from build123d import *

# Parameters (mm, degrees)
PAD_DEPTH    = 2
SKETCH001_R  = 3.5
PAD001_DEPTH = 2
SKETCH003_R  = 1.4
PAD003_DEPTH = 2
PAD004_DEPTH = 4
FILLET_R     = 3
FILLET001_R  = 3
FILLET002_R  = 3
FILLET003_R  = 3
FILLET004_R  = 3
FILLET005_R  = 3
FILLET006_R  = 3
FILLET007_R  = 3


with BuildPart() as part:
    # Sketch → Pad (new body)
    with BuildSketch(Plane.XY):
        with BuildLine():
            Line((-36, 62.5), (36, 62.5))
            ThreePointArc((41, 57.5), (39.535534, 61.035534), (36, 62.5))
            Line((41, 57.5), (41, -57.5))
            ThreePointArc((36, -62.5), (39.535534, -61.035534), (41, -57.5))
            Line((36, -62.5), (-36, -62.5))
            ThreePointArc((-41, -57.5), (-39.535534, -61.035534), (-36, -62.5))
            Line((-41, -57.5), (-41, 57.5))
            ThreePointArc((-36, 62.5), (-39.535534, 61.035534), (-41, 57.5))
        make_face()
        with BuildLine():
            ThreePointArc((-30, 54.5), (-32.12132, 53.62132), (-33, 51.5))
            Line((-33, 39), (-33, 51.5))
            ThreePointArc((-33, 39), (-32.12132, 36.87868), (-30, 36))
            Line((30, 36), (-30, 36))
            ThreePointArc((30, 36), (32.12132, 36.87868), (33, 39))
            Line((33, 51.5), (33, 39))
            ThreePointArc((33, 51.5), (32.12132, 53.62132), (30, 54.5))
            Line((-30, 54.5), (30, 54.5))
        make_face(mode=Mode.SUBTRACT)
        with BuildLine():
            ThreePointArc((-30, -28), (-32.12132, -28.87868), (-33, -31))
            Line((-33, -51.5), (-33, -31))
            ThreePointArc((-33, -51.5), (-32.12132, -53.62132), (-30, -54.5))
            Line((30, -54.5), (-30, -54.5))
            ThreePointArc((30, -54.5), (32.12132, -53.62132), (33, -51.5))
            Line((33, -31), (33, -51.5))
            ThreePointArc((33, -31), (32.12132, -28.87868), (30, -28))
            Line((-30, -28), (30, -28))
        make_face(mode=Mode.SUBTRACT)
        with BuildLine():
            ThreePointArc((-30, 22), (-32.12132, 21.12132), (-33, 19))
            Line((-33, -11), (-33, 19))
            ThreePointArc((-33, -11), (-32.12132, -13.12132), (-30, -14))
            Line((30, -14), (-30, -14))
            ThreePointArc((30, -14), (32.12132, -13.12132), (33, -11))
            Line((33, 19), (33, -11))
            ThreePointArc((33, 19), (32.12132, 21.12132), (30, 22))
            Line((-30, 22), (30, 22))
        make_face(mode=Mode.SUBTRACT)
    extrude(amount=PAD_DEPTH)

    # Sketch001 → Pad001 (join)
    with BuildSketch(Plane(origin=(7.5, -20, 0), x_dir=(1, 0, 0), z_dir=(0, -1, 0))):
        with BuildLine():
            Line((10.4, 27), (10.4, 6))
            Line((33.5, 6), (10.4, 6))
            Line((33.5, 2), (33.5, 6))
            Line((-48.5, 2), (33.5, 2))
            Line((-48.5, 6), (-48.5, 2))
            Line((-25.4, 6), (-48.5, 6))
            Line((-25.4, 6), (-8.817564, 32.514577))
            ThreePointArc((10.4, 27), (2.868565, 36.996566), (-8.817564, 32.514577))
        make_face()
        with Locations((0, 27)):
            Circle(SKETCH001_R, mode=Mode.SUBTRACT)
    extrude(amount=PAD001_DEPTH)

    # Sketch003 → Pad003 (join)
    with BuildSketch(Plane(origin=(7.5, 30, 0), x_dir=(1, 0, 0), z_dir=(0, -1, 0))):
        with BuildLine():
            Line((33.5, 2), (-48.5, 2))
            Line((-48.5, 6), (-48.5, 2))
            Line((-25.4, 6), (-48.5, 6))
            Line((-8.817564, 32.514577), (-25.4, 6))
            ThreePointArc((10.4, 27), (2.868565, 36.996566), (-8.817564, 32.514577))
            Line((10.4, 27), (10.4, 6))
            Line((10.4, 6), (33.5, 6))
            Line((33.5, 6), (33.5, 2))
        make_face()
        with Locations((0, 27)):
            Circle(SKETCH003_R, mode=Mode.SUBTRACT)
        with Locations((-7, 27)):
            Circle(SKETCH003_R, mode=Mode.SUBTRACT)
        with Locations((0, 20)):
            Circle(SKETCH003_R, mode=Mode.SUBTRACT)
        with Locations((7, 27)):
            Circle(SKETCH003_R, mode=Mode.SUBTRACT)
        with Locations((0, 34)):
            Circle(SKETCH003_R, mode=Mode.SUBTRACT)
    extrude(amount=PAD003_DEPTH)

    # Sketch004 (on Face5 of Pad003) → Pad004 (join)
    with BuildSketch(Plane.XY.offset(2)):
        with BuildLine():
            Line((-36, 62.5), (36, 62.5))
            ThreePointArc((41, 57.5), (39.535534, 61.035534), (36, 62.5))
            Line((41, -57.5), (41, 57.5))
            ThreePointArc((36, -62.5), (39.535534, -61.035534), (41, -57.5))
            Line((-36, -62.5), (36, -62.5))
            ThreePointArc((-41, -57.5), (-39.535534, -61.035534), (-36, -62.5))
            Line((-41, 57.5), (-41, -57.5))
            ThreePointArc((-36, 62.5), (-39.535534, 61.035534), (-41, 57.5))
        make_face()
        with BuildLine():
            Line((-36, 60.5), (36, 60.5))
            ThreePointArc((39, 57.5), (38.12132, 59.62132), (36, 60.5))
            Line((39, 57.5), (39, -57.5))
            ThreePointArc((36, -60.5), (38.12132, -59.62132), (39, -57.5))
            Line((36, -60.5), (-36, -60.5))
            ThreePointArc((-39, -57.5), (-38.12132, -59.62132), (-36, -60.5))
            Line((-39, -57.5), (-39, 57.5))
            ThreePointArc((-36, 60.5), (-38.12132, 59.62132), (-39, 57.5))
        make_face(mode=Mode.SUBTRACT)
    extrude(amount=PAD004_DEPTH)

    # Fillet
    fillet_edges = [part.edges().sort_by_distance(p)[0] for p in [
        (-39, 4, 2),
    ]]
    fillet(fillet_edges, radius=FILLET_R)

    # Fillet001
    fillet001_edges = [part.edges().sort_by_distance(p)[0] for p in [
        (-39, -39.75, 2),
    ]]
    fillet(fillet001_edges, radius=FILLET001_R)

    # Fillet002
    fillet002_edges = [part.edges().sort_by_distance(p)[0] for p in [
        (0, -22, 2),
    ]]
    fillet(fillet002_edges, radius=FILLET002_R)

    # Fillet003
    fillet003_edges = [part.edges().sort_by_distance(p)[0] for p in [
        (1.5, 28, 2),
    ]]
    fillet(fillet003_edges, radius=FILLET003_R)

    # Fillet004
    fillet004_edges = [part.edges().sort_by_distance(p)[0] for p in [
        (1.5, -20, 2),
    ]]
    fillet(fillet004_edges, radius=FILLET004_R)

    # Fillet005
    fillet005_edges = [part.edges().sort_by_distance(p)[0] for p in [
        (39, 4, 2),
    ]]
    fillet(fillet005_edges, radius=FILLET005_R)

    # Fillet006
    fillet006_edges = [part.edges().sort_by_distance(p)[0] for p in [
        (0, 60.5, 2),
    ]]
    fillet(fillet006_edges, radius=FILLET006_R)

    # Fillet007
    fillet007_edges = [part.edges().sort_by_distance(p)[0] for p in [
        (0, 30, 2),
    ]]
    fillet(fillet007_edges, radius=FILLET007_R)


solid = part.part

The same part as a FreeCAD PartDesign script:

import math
import FreeCAD as App
import Part
import Sketcher
Q = App.Units.Quantity


def edges_at(feature, points):
    """Names of the edges that pass closest to the given points."""
    edges = feature.Shape.Edges
    near = lambda p: min(range(len(edges)), key=lambda i: edges[i].distToShape(Part.Vertex(*p))[0])
    return sorted({f"Edge{near(p) + 1}" for p in points})

doc = App.newDocument("Part")
body = doc.addObject("PartDesign::Body", "Body")

# Sketch on XY plane
sketch1 = body.newObject("Sketcher::SketchObject", "Sketch")
sketch1.AttachmentSupport = (doc.getObject("XY_Plane"), [""])
sketch1.MapMode = "FlatFace"
sketch1.addGeometry(Part.LineSegment(App.Vector(36, 62.5, 0), App.Vector(-36, 62.5, 0)), False)
sketch1.addGeometry(Part.ArcOfCircle(Part.Circle(App.Vector(-36, 57.5, 0), App.Vector(0, 0, 1), 5), math.radians(89.999996), math.radians(180.000004)), False)
sketch1.addGeometry(Part.LineSegment(App.Vector(-41, 57.5, 0), App.Vector(-41, -57.5, 0)), False)
sketch1.addGeometry(Part.ArcOfCircle(Part.Circle(App.Vector(-36, -57.5, 0), App.Vector(0, 0, 1), 5), math.radians(179.999996), math.radians(270.000004)), False)
sketch1.addGeometry(Part.LineSegment(App.Vector(-36, -62.5, 0), App.Vector(36, -62.5, 0)), False)
sketch1.addGeometry(Part.ArcOfCircle(Part.Circle(App.Vector(36, -57.5, 0), App.Vector(0, 0, 1), 5), math.radians(-90.000004), math.radians(0.000004)), False)
sketch1.addGeometry(Part.LineSegment(App.Vector(41, -57.5, 0), App.Vector(41, 57.5, 0)), False)
sketch1.addGeometry(Part.ArcOfCircle(Part.Circle(App.Vector(36, 57.5, 0), App.Vector(0, 0, 1), 5), math.radians(-0.000004), math.radians(90.000004)), False)
sketch1.addGeometry(Part.LineSegment(App.Vector(-30, -28, 0), App.Vector(30, -28, 0)), False)
sketch1.addGeometry(Part.ArcOfCircle(Part.Circle(App.Vector(29.999999, -31.000001, 0), App.Vector(0, 0, 1), 3.000001), math.radians(0.000022), math.radians(89.999978)), False)
sketch1.addGeometry(Part.LineSegment(App.Vector(33, -31, 0), App.Vector(33, -51.5, 0)), False)
sketch1.addGeometry(Part.ArcOfCircle(Part.Circle(App.Vector(29.999999, -51.499999, 0), App.Vector(0, 0, 1), 3.000001), math.radians(-89.999978), math.radians(-0.000022)), False)
sketch1.addGeometry(Part.LineSegment(App.Vector(30, -54.5, 0), App.Vector(-30, -54.5, 0)), False)
sketch1.addGeometry(Part.ArcOfCircle(Part.Circle(App.Vector(-29.999999, -51.499999, 0), App.Vector(0, 0, 1), 3.000001), math.radians(-179.999978), math.radians(-90.000022)), False)
sketch1.addGeometry(Part.LineSegment(App.Vector(-33, -51.5, 0), App.Vector(-33, -31, 0)), False)
sketch1.addGeometry(Part.ArcOfCircle(Part.Circle(App.Vector(-29.999999, -31.000001, 0), App.Vector(0, 0, 1), 3.000001), math.radians(90.000022), math.radians(179.999978)), False)
sketch1.addGeometry(Part.LineSegment(App.Vector(-30, 22, 0), App.Vector(30, 22, 0)), False)
sketch1.addGeometry(Part.ArcOfCircle(Part.Circle(App.Vector(29.999999, 18.999999, 0), App.Vector(0, 0, 1), 3.000001), math.radians(0.000022), math.radians(89.999978)), False)
sketch1.addGeometry(Part.LineSegment(App.Vector(33, 19, 0), App.Vector(33, -11, 0)), False)
sketch1.addGeometry(Part.ArcOfCircle(Part.Circle(App.Vector(29.999999, -10.999999, 0), App.Vector(0, 0, 1), 3.000001), math.radians(-89.999978), math.radians(-0.000022)), False)
sketch1.addGeometry(Part.LineSegment(App.Vector(30, -14, 0), App.Vector(-30, -14, 0)), False)
sketch1.addGeometry(Part.ArcOfCircle(Part.Circle(App.Vector(-29.999999, -10.999999, 0), App.Vector(0, 0, 1), 3.000001), math.radians(-179.999978), math.radians(-90.000022)), False)
sketch1.addGeometry(Part.LineSegment(App.Vector(-33, -11, 0), App.Vector(-33, 19, 0)), False)
sketch1.addGeometry(Part.ArcOfCircle(Part.Circle(App.Vector(-29.999999, 18.999999, 0), App.Vector(0, 0, 1), 3.000001), math.radians(90.000022), math.radians(179.999978)), False)
sketch1.addGeometry(Part.LineSegment(App.Vector(-30, 54.5, 0), App.Vector(30, 54.5, 0)), False)
sketch1.addGeometry(Part.ArcOfCircle(Part.Circle(App.Vector(29.999999, 51.499999, 0), App.Vector(0, 0, 1), 3.000001), math.radians(0.000022), math.radians(89.999978)), False)
sketch1.addGeometry(Part.LineSegment(App.Vector(33, 51.5, 0), App.Vector(33, 39, 0)), False)
sketch1.addGeometry(Part.ArcOfCircle(Part.Circle(App.Vector(29.999999, 39.000001, 0), App.Vector(0, 0, 1), 3.000001), math.radians(-89.999978), math.radians(-0.000022)), False)
sketch1.addGeometry(Part.LineSegment(App.Vector(30, 36, 0), App.Vector(-30, 36, 0)), False)
sketch1.addGeometry(Part.ArcOfCircle(Part.Circle(App.Vector(-29.999999, 39.000001, 0), App.Vector(0, 0, 1), 3.000001), math.radians(-179.999978), math.radians(-90.000022)), False)
sketch1.addGeometry(Part.LineSegment(App.Vector(-33, 39, 0), App.Vector(-33, 51.5, 0)), False)
sketch1.addGeometry(Part.ArcOfCircle(Part.Circle(App.Vector(-29.999999, 51.499999, 0), App.Vector(0, 0, 1), 3.000001), math.radians(90.000022), math.radians(179.999978)), False)
sketch1.addConstraint(Sketcher.Constraint("Tangent", 0, 2, 1, 1))
sketch1.addConstraint(Sketcher.Constraint("Tangent", 1, 2, 2, 1))
sketch1.addConstraint(Sketcher.Constraint("Tangent", 2, 2, 3, 1))
sketch1.addConstraint(Sketcher.Constraint("Tangent", 3, 2, 4, 1))
sketch1.addConstraint(Sketcher.Constraint("Tangent", 4, 2, 5, 1))
sketch1.addConstraint(Sketcher.Constraint("Tangent", 5, 2, 6, 1))
sketch1.addConstraint(Sketcher.Constraint("Tangent", 6, 2, 7, 1))
sketch1.addConstraint(Sketcher.Constraint("Tangent", 7, 2, 0, 1))
sketch1.addConstraint(Sketcher.Constraint("Tangent", 8, 2, 9, 2))
sketch1.addConstraint(Sketcher.Constraint("Tangent", 9, 1, 10, 1))
sketch1.addConstraint(Sketcher.Constraint("Tangent", 10, 2, 11, 2))
sketch1.addConstraint(Sketcher.Constraint("Tangent", 11, 1, 12, 1))
sketch1.addConstraint(Sketcher.Constraint("Tangent", 12, 2, 13, 2))
sketch1.addConstraint(Sketcher.Constraint("Tangent", 13, 1, 14, 1))
sketch1.addConstraint(Sketcher.Constraint("Tangent", 14, 2, 15, 2))
sketch1.addConstraint(Sketcher.Constraint("Tangent", 15, 1, 8, 1))
sketch1.addConstraint(Sketcher.Constraint("Tangent", 16, 2, 17, 2))
sketch1.addConstraint(Sketcher.Constraint("Tangent", 17, 1, 18, 1))
sketch1.addConstraint(Sketcher.Constraint("Tangent", 18, 2, 19, 2))
sketch1.addConstraint(Sketcher.Constraint("Tangent", 19, 1, 20, 1))
sketch1.addConstraint(Sketcher.Constraint("Tangent", 20, 2, 21, 2))
sketch1.addConstraint(Sketcher.Constraint("Tangent", 21, 1, 22, 1))
sketch1.addConstraint(Sketcher.Constraint("Tangent", 22, 2, 23, 2))
sketch1.addConstraint(Sketcher.Constraint("Tangent", 23, 1, 16, 1))
sketch1.addConstraint(Sketcher.Constraint("Tangent", 24, 2, 25, 2))
sketch1.addConstraint(Sketcher.Constraint("Tangent", 25, 1, 26, 1))
sketch1.addConstraint(Sketcher.Constraint("Tangent", 26, 2, 27, 2))
sketch1.addConstraint(Sketcher.Constraint("Tangent", 27, 1, 28, 1))
sketch1.addConstraint(Sketcher.Constraint("Tangent", 28, 2, 29, 2))
sketch1.addConstraint(Sketcher.Constraint("Tangent", 29, 1, 30, 1))
sketch1.addConstraint(Sketcher.Constraint("Tangent", 30, 2, 31, 2))
sketch1.addConstraint(Sketcher.Constraint("Tangent", 31, 1, 24, 1))
sketch1.addConstraint(Sketcher.Constraint("Horizontal", 0))
sketch1.addConstraint(Sketcher.Constraint("Vertical", 2))
sketch1.addConstraint(Sketcher.Constraint("Horizontal", 4))
sketch1.addConstraint(Sketcher.Constraint("Vertical", 6))
sketch1.addConstraint(Sketcher.Constraint("Horizontal", 8))
sketch1.addConstraint(Sketcher.Constraint("Vertical", 10))
sketch1.addConstraint(Sketcher.Constraint("Horizontal", 12))
sketch1.addConstraint(Sketcher.Constraint("Vertical", 14))
sketch1.addConstraint(Sketcher.Constraint("Horizontal", 16))
sketch1.addConstraint(Sketcher.Constraint("Vertical", 18))
sketch1.addConstraint(Sketcher.Constraint("Horizontal", 20))
sketch1.addConstraint(Sketcher.Constraint("Vertical", 22))
sketch1.addConstraint(Sketcher.Constraint("Horizontal", 24))
sketch1.addConstraint(Sketcher.Constraint("Vertical", 26))
sketch1.addConstraint(Sketcher.Constraint("Horizontal", 28))
sketch1.addConstraint(Sketcher.Constraint("Vertical", 30))
sketch1.addConstraint(Sketcher.Constraint("Equal", 1, 3))
sketch1.addConstraint(Sketcher.Constraint("Equal", 3, 5))
sketch1.addConstraint(Sketcher.Constraint("Equal", 5, 7))
sketch1.addConstraint(Sketcher.Constraint("Equal", 9, 11))
sketch1.addConstraint(Sketcher.Constraint("Equal", 11, 13))
sketch1.addConstraint(Sketcher.Constraint("Equal", 13, 15))
sketch1.addConstraint(Sketcher.Constraint("Equal", 15, 17))
sketch1.addConstraint(Sketcher.Constraint("Equal", 17, 19))
sketch1.addConstraint(Sketcher.Constraint("Equal", 19, 21))
sketch1.addConstraint(Sketcher.Constraint("Equal", 21, 23))
sketch1.addConstraint(Sketcher.Constraint("Equal", 23, 25))
sketch1.addConstraint(Sketcher.Constraint("Equal", 25, 27))
sketch1.addConstraint(Sketcher.Constraint("Equal", 27, 29))
sketch1.addConstraint(Sketcher.Constraint("Equal", 29, 31))
sketch1.addConstraint(Sketcher.Constraint("Symmetric", 1, 3, 5, 3, -1, 1))
sketch1.addConstraint(Sketcher.Constraint("Symmetric", 13, 3, 25, 3, -1, 1))
sketch1.addConstraint(Sketcher.Constraint("Vertical", 11, 3, 17, 3))
sketch1.addConstraint(Sketcher.Constraint("Vertical", 15, 3, 21, 3))
sketch1.addConstraint(Sketcher.Constraint("Vertical", 19, 3, 25, 3))
sketch1.addConstraint(Sketcher.Constraint("Vertical", 23, 3, 29, 3))
sketch1.addConstraint(Sketcher.Constraint("Radius", 1, Q("5 mm")))
sketch1.addConstraint(Sketcher.Constraint("Radius", 9, Q("3.000001 mm")))
sketch1.addConstraint(Sketcher.Constraint("DistanceX", 0, 2, 0, 1, Q("72 mm")))
sketch1.addConstraint(Sketcher.Constraint("DistanceX", 8, 1, 8, 2, Q("60 mm")))
sketch1.addConstraint(Sketcher.Constraint("DistanceY", 2, 2, 2, 1, Q("115 mm")))
sketch1.addConstraint(Sketcher.Constraint("DistanceY", 18, 2, 18, 1, Q("30 mm")))
sketch1.addConstraint(Sketcher.Constraint("DistanceY", 10, 2, 10, 1, Q("20.5 mm")))
sketch1.addConstraint(Sketcher.Constraint("DistanceY", 26, 2, 26, 1, Q("12.5 mm")))
sketch1.addConstraint(Sketcher.Constraint("DistanceY", 9, 3, -1, 1, Q("31.000001 mm")))
sketch1.addConstraint(Sketcher.Constraint("DistanceY", -1, 1, 17, 3, Q("18.999999 mm")))
pad1 = body.newObject("PartDesign::Pad", "Pad")
pad1.Profile = sketch1
pad1.Length = 2

# Sketch on XZ plane
sketch2 = body.newObject("Sketcher::SketchObject", "Sketch001")
sketch2.AttachmentSupport = (doc.getObject("XZ_Plane"), [""])
sketch2.MapMode = "FlatFace"
sketch2.AttachmentOffset = App.Placement(App.Vector(0, 0, 20), App.Rotation())
sketch2.addGeometry(Part.LineSegment(App.Vector(17.9, 6, 0), App.Vector(17.9, 27, 0)), False)
sketch2.addGeometry(Part.ArcOfCircle(Part.Circle(App.Vector(7.5, 27, 0), App.Vector(0, 0, 1), 10.4), math.radians(0), math.radians(147.977801)), False)
sketch2.addGeometry(Part.LineSegment(App.Vector(-1.317564, 32.514577, 0), App.Vector(-17.9, 6, 0)), False)
sketch2.addGeometry(Part.LineSegment(App.Vector(-17.9, 6, 0), App.Vector(-41, 6, 0)), False)
sketch2.addGeometry(Part.LineSegment(App.Vector(-41, 6, 0), App.Vector(-41, 2, 0)), False)
sketch2.addGeometry(Part.LineSegment(App.Vector(-41, 2, 0), App.Vector(41, 2, 0)), False)
sketch2.addGeometry(Part.LineSegment(App.Vector(41, 2, 0), App.Vector(41, 6, 0)), False)
sketch2.addGeometry(Part.LineSegment(App.Vector(41, 6, 0), App.Vector(17.9, 6, 0)), False)
sketch2.addGeometry(Part.Circle(App.Vector(7.5, 27, 0), App.Vector(0, 0, 1), 3.5), False)
sketch2.addConstraint(Sketcher.Constraint("Tangent", 0, 2, 1, 1))
sketch2.addConstraint(Sketcher.Constraint("Tangent", 1, 2, 2, 1))
sketch2.addConstraint(Sketcher.Constraint("Coincident", 2, 2, 3, 1))
sketch2.addConstraint(Sketcher.Constraint("Coincident", 3, 2, 4, 1))
sketch2.addConstraint(Sketcher.Constraint("Coincident", 4, 2, 5, 1))
sketch2.addConstraint(Sketcher.Constraint("Coincident", 5, 2, 6, 1))
sketch2.addConstraint(Sketcher.Constraint("Coincident", 6, 2, 7, 1))
sketch2.addConstraint(Sketcher.Constraint("Coincident", 7, 2, 0, 1))
sketch2.addConstraint(Sketcher.Constraint("Vertical", 0))
sketch2.addConstraint(Sketcher.Constraint("Horizontal", 3))
sketch2.addConstraint(Sketcher.Constraint("Vertical", 4))
sketch2.addConstraint(Sketcher.Constraint("Horizontal", 5))
sketch2.addConstraint(Sketcher.Constraint("Vertical", 6))
sketch2.addConstraint(Sketcher.Constraint("Horizontal", 7))
sketch2.addConstraint(Sketcher.Constraint("Coincident", 8, 3, 1, 3))
sketch2.addConstraint(Sketcher.Constraint("Symmetric", 3, 2, 6, 2, -2))
sketch2.addConstraint(Sketcher.Constraint("Equal", 3, 7))
sketch2.addConstraint(Sketcher.Constraint("Diameter", 8, Q("7 mm")))
sketch2.addConstraint(Sketcher.Constraint("Radius", 1, Q("10.4 mm")))
sketch2.addConstraint(Sketcher.Constraint("DistanceX", 5, 1, 5, 2, Q("82 mm")))
sketch2.addConstraint(Sketcher.Constraint("DistanceY", 0, 1, 0, 2, Q("21 mm")))
sketch2.addConstraint(Sketcher.Constraint("DistanceY", 4, 2, 4, 1, Q("4 mm")))
sketch2.addConstraint(Sketcher.Constraint("DistanceX", 3, 2, 3, 1, Q("23.1 mm")))
sketch2.addConstraint(Sketcher.Constraint("DistanceY", -1, 1, 1, 3, Q("27 mm")))
pad2 = body.newObject("PartDesign::Pad", "Pad001")
pad2.Profile = sketch2
pad2.Length = 2

# Sketch on XZ plane
sketch3 = body.newObject("Sketcher::SketchObject", "Sketch002")
sketch3.AttachmentSupport = (doc.getObject("XZ_Plane"), [""])
sketch3.MapMode = "FlatFace"
sketch3.AttachmentOffset = App.Placement(App.Vector(0, 0, -30), App.Rotation())
sketch3.addGeometry(Part.LineSegment(App.Vector(-41, 2, 0), App.Vector(41, 2, 0)), False)
sketch3.addGeometry(Part.LineSegment(App.Vector(41, 2, 0), App.Vector(41, 6, 0)), False)
sketch3.addGeometry(Part.LineSegment(App.Vector(41, 6, 0), App.Vector(17.9, 6, 0)), False)
sketch3.addGeometry(Part.LineSegment(App.Vector(17.9, 6, 0), App.Vector(17.9, 27, 0)), False)
sketch3.addGeometry(Part.ArcOfCircle(Part.Circle(App.Vector(7.5, 27, 0), App.Vector(0, 0, 1), 10.4), math.radians(0), math.radians(147.977801)), False)
sketch3.addGeometry(Part.LineSegment(App.Vector(-1.317564, 32.514577, 0), App.Vector(-17.9, 6, 0)), False)
sketch3.addGeometry(Part.LineSegment(App.Vector(-17.9, 6, 0), App.Vector(-41, 6, 0)), False)
sketch3.addGeometry(Part.LineSegment(App.Vector(-41, 6, 0), App.Vector(-41, 2, 0)), False)
sketch3.addGeometry(Part.Circle(App.Vector(7.5, 20, 0), App.Vector(0, 0, 1), 1.4), False)
sketch3.addGeometry(Part.Circle(App.Vector(14.5, 27, 0), App.Vector(0, 0, 1), 1.4), False)
sketch3.addGeometry(Part.Circle(App.Vector(7.5, 27, 0), App.Vector(0, 0, 1), 1.4), False)
sketch3.addGeometry(Part.Circle(App.Vector(0.5, 27, 0), App.Vector(0, 0, 1), 1.4), False)
sketch3.addGeometry(Part.Circle(App.Vector(7.5, 34, 0), App.Vector(0, 0, 1), 1.4), False)
sketch3.addConstraint(Sketcher.Constraint("Coincident", 0, 2, 1, 1))
sketch3.addConstraint(Sketcher.Constraint("Coincident", 1, 2, 2, 1))
sketch3.addConstraint(Sketcher.Constraint("Coincident", 2, 2, 3, 1))
sketch3.addConstraint(Sketcher.Constraint("Tangent", 3, 2, 4, 1))
sketch3.addConstraint(Sketcher.Constraint("Tangent", 4, 2, 5, 1))
sketch3.addConstraint(Sketcher.Constraint("Coincident", 5, 2, 6, 1))
sketch3.addConstraint(Sketcher.Constraint("Coincident", 6, 2, 7, 1))
sketch3.addConstraint(Sketcher.Constraint("Coincident", 7, 2, 0, 1))
sketch3.addConstraint(Sketcher.Constraint("Horizontal", 0))
sketch3.addConstraint(Sketcher.Constraint("Vertical", 1))
sketch3.addConstraint(Sketcher.Constraint("Horizontal", 2))
sketch3.addConstraint(Sketcher.Constraint("Vertical", 3))
sketch3.addConstraint(Sketcher.Constraint("Horizontal", 6))
sketch3.addConstraint(Sketcher.Constraint("Vertical", 7))
sketch3.addConstraint(Sketcher.Constraint("Coincident", 10, 3, 4, 3))
sketch3.addConstraint(Sketcher.Constraint("Equal", 8, 9))
sketch3.addConstraint(Sketcher.Constraint("Equal", 9, 10))
sketch3.addConstraint(Sketcher.Constraint("Equal", 10, 11))
sketch3.addConstraint(Sketcher.Constraint("Equal", 11, 12))
sketch3.addConstraint(Sketcher.Constraint("Symmetric", 2, 2, 5, 2, -2))
sketch3.addConstraint(Sketcher.Constraint("Horizontal", 4, 3, 9, 3))
sketch3.addConstraint(Sketcher.Constraint("Horizontal", 10, 3, 11, 3))
sketch3.addConstraint(Sketcher.Constraint("Vertical", 4, 3, 8, 3))
sketch3.addConstraint(Sketcher.Constraint("Vertical", 10, 3, 12, 3))
sketch3.addConstraint(Sketcher.Constraint("Equal", 2, 6))
sketch3.addConstraint(Sketcher.Constraint("Diameter", 8, Q("2.8 mm")))
sketch3.addConstraint(Sketcher.Constraint("Radius", 4, Q("10.4 mm")))
sketch3.addConstraint(Sketcher.Constraint("DistanceX", 0, 1, 0, 2, Q("82 mm")))
sketch3.addConstraint(Sketcher.Constraint("DistanceY", 1, 1, 1, 2, Q("4 mm")))
sketch3.addConstraint(Sketcher.Constraint("DistanceY", 3, 1, 3, 2, Q("21 mm")))
sketch3.addConstraint(Sketcher.Constraint("DistanceX", 2, 2, 2, 1, Q("23.1 mm")))
sketch3.addConstraint(Sketcher.Constraint("DistanceY", -1, 1, 4, 3, Q("27 mm")))
sketch3.addConstraint(Sketcher.Constraint("DistanceY", -1, 1, 8, 3, Q("20 mm")))
sketch3.addConstraint(Sketcher.Constraint("DistanceY", -1, 1, 12, 3, Q("34 mm")))
sketch3.addConstraint(Sketcher.Constraint("DistanceX", 4, 3, 9, 3, Q("7 mm")))
sketch3.addConstraint(Sketcher.Constraint("DistanceX", 11, 3, 10, 3, Q("7 mm")))
pad3 = body.newObject("PartDesign::Pad", "Pad002")
pad3.Profile = sketch3
pad3.Length = 2

# Sketch on XY plane
sketch4 = body.newObject("Sketcher::SketchObject", "Sketch003")
sketch4.AttachmentSupport = (doc.getObject("XY_Plane"), [""])
sketch4.MapMode = "FlatFace"
sketch4.AttachmentOffset = App.Placement(App.Vector(0, 0, 2), App.Rotation())
sketch4.addGeometry(Part.LineSegment(App.Vector(36, 62.5, 0), App.Vector(-36, 62.5, 0)), False)
sketch4.addGeometry(Part.ArcOfCircle(Part.Circle(App.Vector(-36, 57.5, 0), App.Vector(0, 0, 1), 5), math.radians(89.999996), math.radians(180.000004)), False)
sketch4.addGeometry(Part.LineSegment(App.Vector(-41, 57.5, 0), App.Vector(-41, -57.5, 0)), False)
sketch4.addGeometry(Part.ArcOfCircle(Part.Circle(App.Vector(-36, -57.5, 0), App.Vector(0, 0, 1), 5), math.radians(179.999996), math.radians(270.000004)), False)
sketch4.addGeometry(Part.LineSegment(App.Vector(-36, -62.5, 0), App.Vector(36, -62.5, 0)), False)
sketch4.addGeometry(Part.ArcOfCircle(Part.Circle(App.Vector(36, -57.5, 0), App.Vector(0, 0, 1), 5), math.radians(-90.000004), math.radians(0.000004)), False)
sketch4.addGeometry(Part.LineSegment(App.Vector(41, -57.5, 0), App.Vector(41, 57.5, 0)), False)
sketch4.addGeometry(Part.ArcOfCircle(Part.Circle(App.Vector(36, 57.5, 0), App.Vector(0, 0, 1), 5), math.radians(-0.000004), math.radians(90.000004)), False)
sketch4.addGeometry(Part.LineSegment(App.Vector(-36, 60.5, 0), App.Vector(36, 60.5, 0)), False)
sketch4.addGeometry(Part.ArcOfCircle(Part.Circle(App.Vector(35.999999, 57.499999, 0), App.Vector(0, 0, 1), 3.000001), math.radians(0.000022), math.radians(89.999978)), False)
sketch4.addGeometry(Part.LineSegment(App.Vector(39, 57.5, 0), App.Vector(39, -57.5, 0)), False)
sketch4.addGeometry(Part.ArcOfCircle(Part.Circle(App.Vector(35.999999, -57.499999, 0), App.Vector(0, 0, 1), 3.000001), math.radians(-89.999978), math.radians(-0.000022)), False)
sketch4.addGeometry(Part.LineSegment(App.Vector(36, -60.5, 0), App.Vector(-36, -60.5, 0)), False)
sketch4.addGeometry(Part.ArcOfCircle(Part.Circle(App.Vector(-35.999999, -57.499999, 0), App.Vector(0, 0, 1), 3.000001), math.radians(-179.999978), math.radians(-90.000022)), False)
sketch4.addGeometry(Part.LineSegment(App.Vector(-39, -57.5, 0), App.Vector(-39, 57.5, 0)), False)
sketch4.addGeometry(Part.ArcOfCircle(Part.Circle(App.Vector(-35.999999, 57.499999, 0), App.Vector(0, 0, 1), 3.000001), math.radians(90.000022), math.radians(179.999978)), False)
sketch4.addConstraint(Sketcher.Constraint("Tangent", 0, 2, 1, 1))
sketch4.addConstraint(Sketcher.Constraint("Tangent", 1, 2, 2, 1))
sketch4.addConstraint(Sketcher.Constraint("Tangent", 2, 2, 3, 1))
sketch4.addConstraint(Sketcher.Constraint("Tangent", 3, 2, 4, 1))
sketch4.addConstraint(Sketcher.Constraint("Tangent", 4, 2, 5, 1))
sketch4.addConstraint(Sketcher.Constraint("Tangent", 5, 2, 6, 1))
sketch4.addConstraint(Sketcher.Constraint("Tangent", 6, 2, 7, 1))
sketch4.addConstraint(Sketcher.Constraint("Tangent", 7, 2, 0, 1))
sketch4.addConstraint(Sketcher.Constraint("Tangent", 8, 2, 9, 2))
sketch4.addConstraint(Sketcher.Constraint("Tangent", 9, 1, 10, 1))
sketch4.addConstraint(Sketcher.Constraint("Tangent", 10, 2, 11, 2))
sketch4.addConstraint(Sketcher.Constraint("Tangent", 11, 1, 12, 1))
sketch4.addConstraint(Sketcher.Constraint("Tangent", 12, 2, 13, 2))
sketch4.addConstraint(Sketcher.Constraint("Tangent", 13, 1, 14, 1))
sketch4.addConstraint(Sketcher.Constraint("Tangent", 14, 2, 15, 2))
sketch4.addConstraint(Sketcher.Constraint("Tangent", 15, 1, 8, 1))
sketch4.addConstraint(Sketcher.Constraint("Horizontal", 0))
sketch4.addConstraint(Sketcher.Constraint("Vertical", 2))
sketch4.addConstraint(Sketcher.Constraint("Horizontal", 4))
sketch4.addConstraint(Sketcher.Constraint("Vertical", 6))
sketch4.addConstraint(Sketcher.Constraint("Horizontal", 8))
sketch4.addConstraint(Sketcher.Constraint("Vertical", 10))
sketch4.addConstraint(Sketcher.Constraint("Horizontal", 12))
sketch4.addConstraint(Sketcher.Constraint("Vertical", 14))
sketch4.addConstraint(Sketcher.Constraint("Coincident", 9, 3, 7, 3))
sketch4.addConstraint(Sketcher.Constraint("Coincident", 11, 3, 5, 3))
sketch4.addConstraint(Sketcher.Constraint("Coincident", 13, 3, 3, 3))
sketch4.addConstraint(Sketcher.Constraint("Equal", 1, 3))
sketch4.addConstraint(Sketcher.Constraint("Equal", 3, 5))
sketch4.addConstraint(Sketcher.Constraint("Equal", 5, 7))
sketch4.addConstraint(Sketcher.Constraint("Equal", 13, 15))
sketch4.addConstraint(Sketcher.Constraint("Symmetric", 1, 3, 5, 3, -1, 1))
sketch4.addConstraint(Sketcher.Constraint("Radius", 1, Q("5 mm")))
sketch4.addConstraint(Sketcher.Constraint("Radius", 9, Q("3.000001 mm")))
sketch4.addConstraint(Sketcher.Constraint("DistanceX", 0, 2, 0, 1, Q("72 mm")))
sketch4.addConstraint(Sketcher.Constraint("DistanceY", 2, 2, 2, 1, Q("115 mm")))
pad4 = body.newObject("PartDesign::Pad", "Pad003")
pad4.Profile = sketch4
pad4.Length = 4
doc.recompute()

fillet = body.newObject("PartDesign::Fillet", "Fillet")
fillet.Base = (pad4, edges_at(pad4, [(-39, 4, 2)]))
fillet.Radius = 3
doc.recompute()

fillet2 = body.newObject("PartDesign::Fillet", "Fillet001")
fillet2.Base = (fillet, edges_at(fillet, [(-39, -39.75, 2)]))
fillet2.Radius = 3
doc.recompute()

fillet3 = body.newObject("PartDesign::Fillet", "Fillet002")
fillet3.Base = (fillet2, edges_at(fillet2, [(0, -22, 2)]))
fillet3.Radius = 3
doc.recompute()

fillet4 = body.newObject("PartDesign::Fillet", "Fillet003")
fillet4.Base = (fillet3, edges_at(fillet3, [(1.5, 28, 2)]))
fillet4.Radius = 3
doc.recompute()

fillet5 = body.newObject("PartDesign::Fillet", "Fillet004")
fillet5.Base = (fillet4, edges_at(fillet4, [(1.5, -20, 2)]))
fillet5.Radius = 3
doc.recompute()

fillet6 = body.newObject("PartDesign::Fillet", "Fillet005")
fillet6.Base = (fillet5, edges_at(fillet5, [(39, 4, 2)]))
fillet6.Radius = 3
doc.recompute()

fillet7 = body.newObject("PartDesign::Fillet", "Fillet006")
fillet7.Base = (fillet6, edges_at(fillet6, [(0, 60.5, 2)]))
fillet7.Radius = 3
doc.recompute()

fillet8 = body.newObject("PartDesign::Fillet", "Fillet007")
fillet8.Base = (fillet7, edges_at(fillet7, [(0, 30, 2)]))
fillet8.Radius = 3

doc.recompute()
